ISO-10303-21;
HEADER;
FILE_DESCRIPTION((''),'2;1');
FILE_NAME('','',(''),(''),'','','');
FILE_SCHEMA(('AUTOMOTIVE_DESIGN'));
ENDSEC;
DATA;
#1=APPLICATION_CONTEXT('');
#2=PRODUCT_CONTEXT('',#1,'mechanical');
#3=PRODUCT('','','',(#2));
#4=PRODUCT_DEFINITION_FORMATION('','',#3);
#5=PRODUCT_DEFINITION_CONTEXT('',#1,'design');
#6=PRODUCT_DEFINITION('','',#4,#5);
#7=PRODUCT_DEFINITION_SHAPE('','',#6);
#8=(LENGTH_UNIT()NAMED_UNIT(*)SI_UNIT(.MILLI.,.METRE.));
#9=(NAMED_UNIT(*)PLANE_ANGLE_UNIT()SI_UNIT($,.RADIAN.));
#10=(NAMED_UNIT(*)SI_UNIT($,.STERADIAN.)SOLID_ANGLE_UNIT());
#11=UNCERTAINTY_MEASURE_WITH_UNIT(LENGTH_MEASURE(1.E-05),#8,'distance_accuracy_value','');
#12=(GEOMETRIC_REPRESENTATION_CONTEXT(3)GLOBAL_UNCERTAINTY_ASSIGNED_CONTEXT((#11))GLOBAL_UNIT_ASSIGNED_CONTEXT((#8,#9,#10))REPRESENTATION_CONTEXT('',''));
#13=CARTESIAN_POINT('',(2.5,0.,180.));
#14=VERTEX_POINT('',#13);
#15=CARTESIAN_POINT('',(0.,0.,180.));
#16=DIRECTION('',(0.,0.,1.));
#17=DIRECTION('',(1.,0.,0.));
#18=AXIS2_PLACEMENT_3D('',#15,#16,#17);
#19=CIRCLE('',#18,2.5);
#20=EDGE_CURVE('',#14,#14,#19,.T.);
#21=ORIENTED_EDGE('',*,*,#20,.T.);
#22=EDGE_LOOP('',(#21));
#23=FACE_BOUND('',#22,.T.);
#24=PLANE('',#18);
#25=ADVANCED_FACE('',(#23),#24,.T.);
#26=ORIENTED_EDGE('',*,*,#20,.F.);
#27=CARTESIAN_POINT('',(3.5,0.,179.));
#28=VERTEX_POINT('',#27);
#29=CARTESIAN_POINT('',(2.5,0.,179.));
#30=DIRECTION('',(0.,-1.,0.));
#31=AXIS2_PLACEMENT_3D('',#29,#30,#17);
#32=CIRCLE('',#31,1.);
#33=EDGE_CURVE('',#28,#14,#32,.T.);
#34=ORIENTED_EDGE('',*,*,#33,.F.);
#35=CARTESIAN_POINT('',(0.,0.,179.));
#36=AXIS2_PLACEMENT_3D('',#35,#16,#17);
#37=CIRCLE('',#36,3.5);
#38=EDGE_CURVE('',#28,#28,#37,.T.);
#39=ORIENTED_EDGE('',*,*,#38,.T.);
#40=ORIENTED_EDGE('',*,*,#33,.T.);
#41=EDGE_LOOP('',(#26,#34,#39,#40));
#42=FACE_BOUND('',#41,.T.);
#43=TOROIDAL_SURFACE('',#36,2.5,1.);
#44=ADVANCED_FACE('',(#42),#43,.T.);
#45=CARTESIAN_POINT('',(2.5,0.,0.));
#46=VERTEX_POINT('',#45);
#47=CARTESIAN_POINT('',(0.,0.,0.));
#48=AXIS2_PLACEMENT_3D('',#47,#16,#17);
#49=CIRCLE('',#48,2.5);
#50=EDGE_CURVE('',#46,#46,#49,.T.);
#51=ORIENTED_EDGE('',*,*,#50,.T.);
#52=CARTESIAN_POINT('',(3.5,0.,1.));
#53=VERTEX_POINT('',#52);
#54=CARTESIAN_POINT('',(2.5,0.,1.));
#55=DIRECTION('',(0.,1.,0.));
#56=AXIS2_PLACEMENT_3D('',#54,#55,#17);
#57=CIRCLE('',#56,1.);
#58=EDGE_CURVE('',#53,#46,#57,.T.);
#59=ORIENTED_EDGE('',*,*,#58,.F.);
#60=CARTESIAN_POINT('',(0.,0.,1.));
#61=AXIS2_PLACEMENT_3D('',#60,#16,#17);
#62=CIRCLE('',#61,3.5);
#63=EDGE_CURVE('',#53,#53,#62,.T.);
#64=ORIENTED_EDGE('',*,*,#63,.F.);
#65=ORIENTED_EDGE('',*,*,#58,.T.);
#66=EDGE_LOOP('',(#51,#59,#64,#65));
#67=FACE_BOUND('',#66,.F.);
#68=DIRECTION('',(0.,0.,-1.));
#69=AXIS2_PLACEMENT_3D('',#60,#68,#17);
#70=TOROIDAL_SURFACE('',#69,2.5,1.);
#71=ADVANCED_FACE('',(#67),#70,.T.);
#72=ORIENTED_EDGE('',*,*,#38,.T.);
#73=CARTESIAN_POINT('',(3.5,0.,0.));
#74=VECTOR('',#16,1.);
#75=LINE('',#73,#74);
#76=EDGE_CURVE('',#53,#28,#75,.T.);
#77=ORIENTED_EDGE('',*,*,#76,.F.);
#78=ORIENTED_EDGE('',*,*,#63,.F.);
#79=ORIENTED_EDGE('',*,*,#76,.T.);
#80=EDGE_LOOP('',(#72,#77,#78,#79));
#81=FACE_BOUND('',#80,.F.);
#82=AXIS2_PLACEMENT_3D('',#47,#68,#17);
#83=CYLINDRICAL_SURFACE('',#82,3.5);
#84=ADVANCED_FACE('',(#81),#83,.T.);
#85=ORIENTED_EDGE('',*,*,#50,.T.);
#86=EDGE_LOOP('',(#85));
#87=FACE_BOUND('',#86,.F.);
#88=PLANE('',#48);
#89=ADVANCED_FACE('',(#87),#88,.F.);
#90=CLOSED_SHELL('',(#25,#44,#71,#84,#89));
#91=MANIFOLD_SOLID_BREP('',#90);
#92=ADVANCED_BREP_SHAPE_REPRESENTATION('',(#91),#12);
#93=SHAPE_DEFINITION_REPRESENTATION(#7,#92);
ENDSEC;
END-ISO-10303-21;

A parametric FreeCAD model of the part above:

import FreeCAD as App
import Part
import Sketcher

V = App.Vector


def edges_at(feature, points):
    """Names of the edges that pass closest to the given points."""
    edges = feature.Shape.Edges
    near = lambda p: min(range(len(edges)), key=lambda i: edges[i].distToShape(Part.Vertex(*p))[0])
    return sorted({f"Edge{near(p) + 1}" for p in points})

doc = App.newDocument("Part")
body = doc.addObject("PartDesign::Body", "Body")

sketch1 = body.newObject("Sketcher::SketchObject", "Sketch")
sketch1.AttachmentSupport = (doc.getObject("XY_Plane"), [""])
sketch1.MapMode = "FlatFace"
sketch1.addGeometry(Part.Circle(V(0, 0, 0), V(0, 0, 1), 3.5), False)
sketch1.addConstraint([
    Sketcher.Constraint("Coincident", 0, 3, -1, 1),
    Sketcher.Constraint("Diameter", 0, 7.0),
])
pad1 = body.newObject("PartDesign::Pad", "Pad")
pad1.Profile = sketch1
pad1.Length = 180
doc.recompute()

fillet = body.newObject("PartDesign::Fillet", "Fillet")
fillet.Base = (pad1, edges_at(pad1, [(-3.5, 0, 180), (-3.5, 0, 0)]))
fillet.Radius = 1

doc.recompute()
